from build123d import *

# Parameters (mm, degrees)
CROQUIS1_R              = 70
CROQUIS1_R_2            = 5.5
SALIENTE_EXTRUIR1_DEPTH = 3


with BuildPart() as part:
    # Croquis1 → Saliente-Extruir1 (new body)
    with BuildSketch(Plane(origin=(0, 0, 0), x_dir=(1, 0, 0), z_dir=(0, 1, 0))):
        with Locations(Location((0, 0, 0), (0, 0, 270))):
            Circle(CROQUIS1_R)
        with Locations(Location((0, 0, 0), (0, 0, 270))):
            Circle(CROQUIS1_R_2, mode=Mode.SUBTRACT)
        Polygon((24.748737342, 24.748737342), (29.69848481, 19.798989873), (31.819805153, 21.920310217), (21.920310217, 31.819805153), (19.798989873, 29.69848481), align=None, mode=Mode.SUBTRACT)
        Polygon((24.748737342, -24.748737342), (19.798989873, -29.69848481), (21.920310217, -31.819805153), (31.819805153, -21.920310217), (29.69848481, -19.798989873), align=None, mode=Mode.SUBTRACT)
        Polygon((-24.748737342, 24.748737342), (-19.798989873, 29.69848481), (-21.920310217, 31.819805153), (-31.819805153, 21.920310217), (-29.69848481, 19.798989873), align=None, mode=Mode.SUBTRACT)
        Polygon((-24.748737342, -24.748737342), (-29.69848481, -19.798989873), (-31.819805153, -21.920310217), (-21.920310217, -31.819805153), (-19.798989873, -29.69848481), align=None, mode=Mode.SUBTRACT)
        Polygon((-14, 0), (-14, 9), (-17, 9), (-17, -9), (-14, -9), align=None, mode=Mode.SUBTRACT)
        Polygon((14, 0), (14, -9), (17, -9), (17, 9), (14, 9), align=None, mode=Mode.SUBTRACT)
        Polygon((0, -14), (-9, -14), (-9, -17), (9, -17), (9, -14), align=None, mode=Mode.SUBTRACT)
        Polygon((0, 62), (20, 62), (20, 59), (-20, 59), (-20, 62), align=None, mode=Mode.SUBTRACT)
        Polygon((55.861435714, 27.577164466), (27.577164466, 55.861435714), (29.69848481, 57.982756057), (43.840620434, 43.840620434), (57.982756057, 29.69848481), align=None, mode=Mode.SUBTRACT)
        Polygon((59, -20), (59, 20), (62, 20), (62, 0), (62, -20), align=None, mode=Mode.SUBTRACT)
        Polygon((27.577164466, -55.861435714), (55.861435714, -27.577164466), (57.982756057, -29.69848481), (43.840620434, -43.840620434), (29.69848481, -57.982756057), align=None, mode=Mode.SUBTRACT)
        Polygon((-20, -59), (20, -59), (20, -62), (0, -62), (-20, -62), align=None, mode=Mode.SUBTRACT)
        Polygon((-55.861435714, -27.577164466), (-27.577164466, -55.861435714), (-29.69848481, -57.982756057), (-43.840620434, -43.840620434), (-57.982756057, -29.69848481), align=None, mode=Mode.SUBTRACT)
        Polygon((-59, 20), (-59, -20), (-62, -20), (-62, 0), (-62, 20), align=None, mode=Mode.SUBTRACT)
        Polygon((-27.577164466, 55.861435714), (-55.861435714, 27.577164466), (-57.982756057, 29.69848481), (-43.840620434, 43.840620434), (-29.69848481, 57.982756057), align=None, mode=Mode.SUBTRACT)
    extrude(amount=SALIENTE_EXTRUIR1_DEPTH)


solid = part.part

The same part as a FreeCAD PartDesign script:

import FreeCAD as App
import Part
import Sketcher

V = App.Vector

doc = App.newDocument("Part")
params = doc.addObject("Spreadsheet::Sheet", "Params")
for row, (alias, value) in enumerate([
    ("sketch1_diameter", "140 mm"),
    ("sketch1_diameter2", "11 mm"),
    ("sketch1_width", "3 mm"),
    ("sketch1_width2", "40 mm"),
    ("sketch1_width3", "18 mm"),
    ("pad1_length", "3 mm"),
], start=1):
    params.set(f"A{row}", alias)
    params.set(f"B{row}", "=" + value)
    params.setAlias(f"B{row}", alias)

body = doc.addObject("PartDesign::Body", "Body")

# Sketch on XZ plane
sketch1 = body.newObject("Sketcher::SketchObject", "Sketch")
sketch1.AttachmentSupport = (doc.getObject("XZ_Plane"), [""])
sketch1.MapMode = "FlatFace"
sketch1.addGeometry(Part.Circle(V(0, 0, 0), V(0, 0, 1), 70), False)
sketch1.addGeometry(Part.LineSegment(V(-29.7, -58, 0), V(-27.6, -55.9, 0)), False)
sketch1.addGeometry(Part.LineSegment(V(-27.6, -55.9, 0), V(-55.9, -27.6, 0)), False)
sketch1.addGeometry(Part.LineSegment(V(-55.9, -27.6, 0), V(-58, -29.7, 0)), False)
sketch1.addGeometry(Part.LineSegment(V(-58, -29.7, 0), V(-43.8, -43.8, 0)), False)
sketch1.addGeometry(Part.LineSegment(V(-43.8, -43.8, 0), V(-29.7, -58, 0)), False)
sketch1.addGeometry(Part.LineSegment(V(-19.8, -29.7, 0), V(-24.7, -24.7, 0)), False)
sketch1.addGeometry(Part.LineSegment(V(-24.7, -24.7, 0), V(-29.7, -19.8, 0)), False)
sketch1.addGeometry(Part.LineSegment(V(-29.7, -19.8, 0), V(-31.8, -21.9, 0)), False)
sketch1.addGeometry(Part.LineSegment(V(-31.8, -21.9, 0), V(-21.9, -31.8, 0)), False)
sketch1.addGeometry(Part.LineSegment(V(-21.9, -31.8, 0), V(-19.8, -29.7, 0)), False)
sketch1.addGeometry(Part.LineSegment(V(-62, -20, 0), V(-59, -20, 0)), False)
sketch1.addGeometry(Part.LineSegment(V(-59, -20, 0), V(-59, 20, 0)), False)
sketch1.addGeometry(Part.LineSegment(V(-59, 20, 0), V(-62, 20, 0)), False)
sketch1.addGeometry(Part.LineSegment(V(-62, 20, 0), V(-62, -20, 0)), False)
sketch1.addGeometry(Part.LineSegment(V(-58, 29.7, 0), V(-55.9, 27.6, 0)), False)
sketch1.addGeometry(Part.LineSegment(V(-55.9, 27.6, 0), V(-27.6, 55.9, 0)), False)
sketch1.addGeometry(Part.LineSegment(V(-27.6, 55.9, 0), V(-29.7, 58, 0)), False)
sketch1.addGeometry(Part.LineSegment(V(-29.7, 58, 0), V(-43.8, 43.8, 0)), False)
sketch1.addGeometry(Part.LineSegment(V(-43.8, 43.8, 0), V(-58, 29.7, 0)), False)
sketch1.addGeometry(Part.LineSegment(V(-29.7, 19.8, 0), V(-24.7, 24.7, 0)), False)
sketch1.addGeometry(Part.LineSegment(V(-24.7, 24.7, 0), V(-19.8, 29.7, 0)), False)
sketch1.addGeometry(Part.LineSegment(V(-19.8, 29.7, 0), V(-21.9, 31.8, 0)), False)
sketch1.addGeometry(Part.LineSegment(V(-21.9, 31.8, 0), V(-31.8, 21.9, 0)), False)
sketch1.addGeometry(Part.LineSegment(V(-31.8, 21.9, 0), V(-29.7, 19.8, 0)), False)
sketch1.addGeometry(Part.LineSegment(V(-14, -9, 0), V(-14, 9, 0)), False)
sketch1.addGeometry(Part.LineSegment(V(-14, 9, 0), V(-17, 9, 0)), False)
sketch1.addGeometry(Part.LineSegment(V(-17, 9, 0), V(-17, -9, 0)), False)
sketch1.addGeometry(Part.LineSegment(V(-17, -9, 0), V(-14, -9, 0)), False)
sketch1.addGeometry(Part.LineSegment(V(-20, -62, 0), V(20, -62, 0)), False)
sketch1.addGeometry(Part.LineSegment(V(20, -62, 0), V(20, -59, 0)), False)
sketch1.addGeometry(Part.LineSegment(V(20, -59, 0), V(-20, -59, 0)), False)
sketch1.addGeometry(Part.LineSegment(V(-20, -59, 0), V(-20, -62, 0)), False)
sketch1.addGeometry(Part.LineSegment(V(29.7, -19.8, 0), V(24.7, -24.7, 0)), False)
sketch1.addGeometry(Part.LineSegment(V(24.7, -24.7, 0), V(19.8, -29.7, 0)), False)
sketch1.addGeometry(Part.LineSegment(V(19.8, -29.7, 0), V(21.9, -31.8, 0)), False)
sketch1.addGeometry(Part.LineSegment(V(21.9, -31.8, 0), V(31.8, -21.9, 0)), False)
sketch1.addGeometry(Part.LineSegment(V(31.8, -21.9, 0), V(29.7, -19.8, 0)), False)
sketch1.addGeometry(Part.LineSegment(V(58, -29.7, 0), V(55.9, -27.6, 0)), False)
sketch1.addGeometry(Part.LineSegment(V(55.9, -27.6, 0), V(27.6, -55.9, 0)), False)
sketch1.addGeometry(Part.LineSegment(V(27.6, -55.9, 0), V(29.7, -58, 0)), False)
sketch1.addGeometry(Part.LineSegment(V(29.7, -58, 0), V(43.8, -43.8, 0)), False)
sketch1.addGeometry(Part.LineSegment(V(43.8, -43.8, 0), V(58, -29.7, 0)), False)
sketch1.addGeometry(Part.Circle(V(0, 0, 0), V(0, 0, 1), 5.5), False)
sketch1.addGeometry(Part.LineSegment(V(-9, 14, 0), V(9, 14, 0)), False)
sketch1.addGeometry(Part.LineSegment(V(9, 14, 0), V(9, 17, 0)), False)
sketch1.addGeometry(Part.LineSegment(V(9, 17, 0), V(-9, 17, 0)), False)
sketch1.addGeometry(Part.LineSegment(V(-9, 17, 0), V(-9, 14, 0)), False)
sketch1.addGeometry(Part.LineSegment(V(14, 9, 0), V(14, -9, 0)), False)
sketch1.addGeometry(Part.LineSegment(V(14, -9, 0), V(17, -9, 0)), False)
sketch1.addGeometry(Part.LineSegment(V(17, -9, 0), V(17, 9, 0)), False)
sketch1.addGeometry(Part.LineSegment(V(17, 9, 0), V(14, 9, 0)), False)
sketch1.addGeometry(Part.LineSegment(V(19.8, 29.7, 0), V(24.7, 24.7, 0)), False)
sketch1.addGeometry(Part.LineSegment(V(24.7, 24.7, 0), V(29.7, 19.8, 0)), False)
sketch1.addGeometry(Part.LineSegment(V(29.7, 19.8, 0), V(31.8, 21.9, 0)), False)
sketch1.addGeometry(Part.LineSegment(V(31.8, 21.9, 0), V(21.9, 31.8, 0)), False)
sketch1.addGeometry(Part.LineSegment(V(21.9, 31.8, 0), V(19.8, 29.7, 0)), False)
sketch1.addGeometry(Part.LineSegment(V(-20, 62, 0), V(-20, 59, 0)), False)
sketch1.addGeometry(Part.LineSegment(V(-20, 59, 0), V(20, 59, 0)), False)
sketch1.addGeometry(Part.LineSegment(V(20, 59, 0), V(20, 62, 0)), False)
sketch1.addGeometry(Part.LineSegment(V(20, 62, 0), V(-20, 62, 0)), False)
sketch1.addGeometry(Part.LineSegment(V(62, 20, 0), V(59, 20, 0)), False)
sketch1.addGeometry(Part.LineSegment(V(59, 20, 0), V(59, -20, 0)), False)
sketch1.addGeometry(Part.LineSegment(V(59, -20, 0), V(62, -20, 0)), False)
sketch1.addGeometry(Part.LineSegment(V(62, -20, 0), V(62, 20, 0)), False)
sketch1.addGeometry(Part.LineSegment(V(29.7, 58, 0), V(27.6, 55.9, 0)), False)
sketch1.addGeometry(Part.LineSegment(V(27.6, 55.9, 0), V(55.9, 27.6, 0)), False)
sketch1.addGeometry(Part.LineSegment(V(55.9, 27.6, 0), V(58, 29.7, 0)), False)
sketch1.addGeometry(Part.LineSegment(V(58, 29.7, 0), V(43.8, 43.8, 0)), False)
sketch1.addGeometry(Part.LineSegment(V(43.8, 43.8, 0), V(29.7, 58, 0)), False)
sketch1.addConstraint(Sketcher.Constraint("Coincident", 1, 2, 2, 1))
sketch1.addConstraint(Sketcher.Constraint("Coincident", 2, 2, 3, 1))
sketch1.addConstraint(Sketcher.Constraint("Coincident", 3, 2, 4, 1))
sketch1.addConstraint(Sketcher.Constraint("Coincident", 4, 2, 5, 1))
sketch1.addConstraint(Sketcher.Constraint("Coincident", 5, 2, 1, 1))
sketch1.addConstraint(Sketcher.Constraint("Coincident", 6, 2, 7, 1))
sketch1.addConstraint(Sketcher.Constraint("Coincident", 7, 2, 8, 1))
sketch1.addConstraint(Sketcher.Constraint("Coincident", 8, 2, 9, 1))
sketch1.addConstraint(Sketcher.Constraint("Coincident", 9, 2, 10, 1))
sketch1.addConstraint(Sketcher.Constraint("Coincident", 10, 2, 6, 1))
sketch1.addConstraint(Sketcher.Constraint("Coincident", 11, 2, 12, 1))
sketch1.addConstraint(Sketcher.Constraint("Coincident", 12, 2, 13, 1))
sketch1.addConstraint(Sketcher.Constraint("Coincident", 13, 2, 14, 1))
sketch1.addConstraint(Sketcher.Constraint("Coincident", 14, 2, 11, 1))
sketch1.addConstraint(Sketcher.Constraint("Coincident", 15, 2, 16, 1))
sketch1.addConstraint(Sketcher.Constraint("Coincident", 16, 2, 17, 1))
sketch1.addConstraint(Sketcher.Constraint("Coincident", 17, 2, 18, 1))
sketch1.addConstraint(Sketcher.Constraint("Coincident", 18, 2, 19, 1))
sketch1.addConstraint(Sketcher.Constraint("Coincident", 19, 2, 15, 1))
sketch1.addConstraint(Sketcher.Constraint("Coincident", 20, 2, 21, 1))
sketch1.addConstraint(Sketcher.Constraint("Coincident", 21, 2, 22, 1))
sketch1.addConstraint(Sketcher.Constraint("Coincident", 22, 2, 23, 1))
sketch1.addConstraint(Sketcher.Constraint("Coincident", 23, 2, 24, 1))
sketch1.addConstraint(Sketcher.Constraint("Coincident", 24, 2, 20, 1))
sketch1.addConstraint(Sketcher.Constraint("Coincident", 25, 2, 26, 1))
sketch1.addConstraint(Sketcher.Constraint("Coincident", 26, 2, 27, 1))
sketch1.addConstraint(Sketcher.Constraint("Coincident", 27, 2, 28, 1))
sketch1.addConstraint(Sketcher.Constraint("Coincident", 28, 2, 25, 1))
sketch1.addConstraint(Sketcher.Constraint("Coincident", 29, 2, 30, 1))
sketch1.addConstraint(Sketcher.Constraint("Coincident", 30, 2, 31, 1))
sketch1.addConstraint(Sketcher.Constraint("Coincident", 31, 2, 32, 1))
sketch1.addConstraint(Sketcher.Constraint("Coincident", 32, 2, 29, 1))
sketch1.addConstraint(Sketcher.Constraint("Coincident", 33, 2, 34, 1))
sketch1.addConstraint(Sketcher.Constraint("Coincident", 34, 2, 35, 1))
sketch1.addConstraint(Sketcher.Constraint("Coincident", 35, 2, 36, 1))
sketch1.addConstraint(Sketcher.Constraint("Coincident", 36, 2, 37, 1))
sketch1.addConstraint(Sketcher.Constraint("Coincident", 37, 2, 33, 1))
sketch1.addConstraint(Sketcher.Constraint("Coincident", 38, 2, 39, 1))
sketch1.addConstraint(Sketcher.Constraint("Coincident", 39, 2, 40, 1))
sketch1.addConstraint(Sketcher.Constraint("Coincident", 40, 2, 41, 1))
sketch1.addConstraint(Sketcher.Constraint("Coincident", 41, 2, 42, 1))
sketch1.addConstraint(Sketcher.Constraint("Coincident", 42, 2, 38, 1))
sketch1.addConstraint(Sketcher.Constraint("Coincident", 44, 2, 45, 1))
sketch1.addConstraint(Sketcher.Constraint("Coincident", 45, 2, 46, 1))
sketch1.addConstraint(Sketcher.Constraint("Coincident", 46, 2, 47, 1))
sketch1.addConstraint(Sketcher.Constraint("Coincident", 47, 2, 44, 1))
sketch1.addConstraint(Sketcher.Constraint("Coincident", 48, 2, 49, 1))
sketch1.addConstraint(Sketcher.Constraint("Coincident", 49, 2, 50, 1))
sketch1.addConstraint(Sketcher.Constraint("Coincident", 50, 2, 51, 1))
sketch1.addConstraint(Sketcher.Constraint("Coincident", 51, 2, 48, 1))
sketch1.addConstraint(Sketcher.Constraint("Coincident", 52, 2, 53, 1))
sketch1.addConstraint(Sketcher.Constraint("Coincident", 53, 2, 54, 1))
sketch1.addConstraint(Sketcher.Constraint("Coincident", 54, 2, 55, 1))
sketch1.addConstraint(Sketcher.Constraint("Coincident", 55, 2, 56, 1))
sketch1.addConstraint(Sketcher.Constraint("Coincident", 56, 2, 52, 1))
sketch1.addConstraint(Sketcher.Constraint("Coincident", 57, 2, 58, 1))
sketch1.addConstraint(Sketcher.Constraint("Coincident", 58, 2, 59, 1))
sketch1.addConstraint(Sketcher.Constraint("Coincident", 59, 2, 60, 1))
sketch1.addConstraint(Sketcher.Constraint("Coincident", 60, 2, 57, 1))
sketch1.addConstraint(Sketcher.Constraint("Coincident", 61, 2, 62, 1))
sketch1.addConstraint(Sketcher.Constraint("Coincident", 62, 2, 63, 1))
sketch1.addConstraint(Sketcher.Constraint("Coincident", 63, 2, 64, 1))
sketch1.addConstraint(Sketcher.Constraint("Coincident", 64, 2, 61, 1))
sketch1.addConstraint(Sketcher.Constraint("Coincident", 65, 2, 66, 1))
sketch1.addConstraint(Sketcher.Constraint("Coincident", 66, 2, 67, 1))
sketch1.addConstraint(Sketcher.Constraint("Coincident", 67, 2, 68, 1))
sketch1.addConstraint(Sketcher.Constraint("Coincident", 68, 2, 69, 1))
sketch1.addConstraint(Sketcher.Constraint("Coincident", 69, 2, 65, 1))
sketch1.addConstraint(Sketcher.Constraint("Horizontal", 11))
sketch1.addConstraint(Sketcher.Constraint("Vertical", 12))
sketch1.addConstraint(Sketcher.Constraint("Horizontal", 13))
sketch1.addConstraint(Sketcher.Constraint("Vertical", 14))
sketch1.addConstraint(Sketcher.Constraint("Vertical", 25))
sketch1.addConstraint(Sketcher.Constraint("Horizontal", 26))
sketch1.addConstraint(Sketcher.Constraint("Vertical", 27))
sketch1.addConstraint(Sketcher.Constraint("Horizontal", 28))
sketch1.addConstraint(Sketcher.Constraint("Horizontal", 29))
sketch1.addConstraint(Sketcher.Constraint("Vertical", 30))
sketch1.addConstraint(Sketcher.Constraint("Horizontal", 31))
sketch1.addConstraint(Sketcher.Constraint("Vertical", 32))
sketch1.addConstraint(Sketcher.Constraint("Horizontal", 44))
sketch1.addConstraint(Sketcher.Constraint("Vertical", 45))
sketch1.addConstraint(Sketcher.Constraint("Horizontal", 46))
sketch1.addConstraint(Sketcher.Constraint("Vertical", 47))
sketch1.addConstraint(Sketcher.Constraint("Vertical", 48))
sketch1.addConstraint(Sketcher.Constraint("Horizontal", 49))
sketch1.addConstraint(Sketcher.Constraint("Vertical", 50))
sketch1.addConstraint(Sketcher.Constraint("Horizontal", 51))
sketch1.addConstraint(Sketcher.Constraint("Vertical", 57))
sketch1.addConstraint(Sketcher.Constraint("Horizontal", 58))
sketch1.addConstraint(Sketcher.Constraint("Vertical", 59))
sketch1.addConstraint(Sketcher.Constraint("Horizontal", 60))
sketch1.addConstraint(Sketcher.Constraint("Horizontal", 61))
sketch1.addConstraint(Sketcher.Constraint("Vertical", 62))
sketch1.addConstraint(Sketcher.Constraint("Horizontal", 63))
sketch1.addConstraint(Sketcher.Constraint("Vertical", 64))
sketch1.addConstraint(Sketcher.Constraint("Coincident", 0, 3, -1, 1))
sketch1.addConstraint(Sketcher.Constraint("Coincident", 43, 3, -1, 1))
sketch1.addConstraint(Sketcher.Constraint("Symmetric", 20, 2, 33, 2, -1, 1))
sketch1.addConstraint(Sketcher.Constraint("Symmetric", 21, 2, 34, 2, -1, 1))
sketch1.addConstraint(Sketcher.Constraint("Symmetric", 22, 2, 35, 2, -1, 1))
sketch1.addConstraint(Sketcher.Constraint("Symmetric", 23, 2, 36, 2, -1, 1))
sketch1.addConstraint(Sketcher.Constraint("Symmetric", 24, 2, 37, 2, -1, 1))
sketch1.addConstraint(Sketcher.Constraint("Symmetric", 15, 2, 38, 2, -1, 1))
sketch1.addConstraint(Sketcher.Constraint("Symmetric", 16, 2, 39, 2, -1, 1))
sketch1.addConstraint(Sketcher.Constraint("Symmetric", 17, 2, 40, 2, -1, 1))
sketch1.addConstraint(Sketcher.Constraint("Symmetric", 18, 2, 41, 2, -1, 1))
sketch1.addConstraint(Sketcher.Constraint("Symmetric", 19, 2, 42, 2, -1, 1))
sketch1.addConstraint(Sketcher.Constraint("Symmetric", 25, 2, 48, 2, -1, 1))
sketch1.addConstraint(Sketcher.Constraint("Symmetric", 27, 2, 50, 2, -1, 1))
sketch1.addConstraint(Sketcher.Constraint("Symmetric", 6, 2, 52, 2, -1, 1))
sketch1.addConstraint(Sketcher.Constraint("Symmetric", 7, 2, 53, 2, -1, 1))
sketch1.addConstraint(Sketcher.Constraint("Symmetric", 8, 2, 54, 2, -1, 1))
sketch1.addConstraint(Sketcher.Constraint("Symmetric", 9, 2, 55, 2, -1, 1))
sketch1.addConstraint(Sketcher.Constraint("Symmetric", 10, 2, 56, 2, -1, 1))
sketch1.addConstraint(Sketcher.Constraint("Symmetric", 30, 2, 57, 2, -1, 1))
sketch1.addConstraint(Sketcher.Constraint("Symmetric", 32, 2, 59, 2, -1, 1))
sketch1.addConstraint(Sketcher.Constraint("Symmetric", 11, 2, 61, 2, -1, 1))
sketch1.addConstraint(Sketcher.Constraint("Symmetric", 13, 2, 63, 2, -1, 1))
sketch1.addConstraint(Sketcher.Constraint("Symmetric", 1, 2, 65, 2, -1, 1))
sketch1.addConstraint(Sketcher.Constraint("Symmetric", 2, 2, 66, 2, -1, 1))
sketch1.addConstraint(Sketcher.Constraint("Symmetric", 3, 2, 67, 2, -1, 1))
sketch1.addConstraint(Sketcher.Constraint("Symmetric", 4, 2, 68, 2, -1, 1))
sketch1.addConstraint(Sketcher.Constraint("Symmetric", 5, 2, 69, 2, -1, 1))
sketch1.addConstraint(Sketcher.Constraint("Symmetric", 6, 2, 33, 2, -2))
sketch1.addConstraint(Sketcher.Constraint("Symmetric", 10, 2, 34, 2, -2))
sketch1.addConstraint(Sketcher.Constraint("Symmetric", 9, 2, 35, 2, -2))
sketch1.addConstraint(Sketcher.Constraint("Symmetric", 8, 2, 36, 2, -2))
sketch1.addConstraint(Sketcher.Constraint("Symmetric", 7, 2, 37, 2, -2))
sketch1.addConstraint(Sketcher.Constraint("Symmetric", 2, 2, 38, 2, -2))
sketch1.addConstraint(Sketcher.Constraint("Symmetric", 1, 2, 39, 2, -2))
sketch1.addConstraint(Sketcher.Constraint("Symmetric", 5, 2, 40, 2, -2))
sketch1.addConstraint(Sketcher.Constraint("Symmetric", 4, 2, 41, 2, -2))
sketch1.addConstraint(Sketcher.Constraint("Symmetric", 3, 2, 42, 2, -2))
sketch1.addConstraint(Sketcher.Constraint("Perpendicular", 1, 2))
sketch1.addConstraint(Sketcher.Constraint("Perpendicular", 2, 3))
sketch1.addConstraint(Sketcher.Constraint("Perpendicular", 3, 4))
sketch1.addConstraint(Sketcher.Constraint("Parallel", 4, 5))
sketch1.addConstraint(Sketcher.Constraint("Parallel", 5, 6))
sketch1.addConstraint(Sketcher.Constraint("Parallel", 6, 7))
sketch1.addConstraint(Sketcher.Constraint("Perpendicular", 7, 8))
sketch1.addConstraint(Sketcher.Constraint("Perpendicular", 8, 9))
sketch1.addConstraint(Sketcher.Constraint("Perpendicular", 9, 10))
sketch1.addConstraint(Sketcher.Constraint("Perpendicular", 10, 15))
sketch1.addConstraint(Sketcher.Constraint("Horizontal", 3, 2, 10, 2))
sketch1.addConstraint(Sketcher.Constraint("Horizontal", 28, 2, 48, 2))
sketch1.addConstraint(Sketcher.Constraint("Horizontal", 13, 2, 61, 2))
sketch1.addConstraint(Sketcher.Constraint("Vertical", 5, 2, 7, 2))
sketch1.addConstraint(Sketcher.Constraint("Vertical", 32, 2, 57, 2))
sketch1.addConstraint(Sketcher.Constraint("Equal", 13, 26))
sketch1.addConstraint(Sketcher.Constraint("Equal", 60, 12))
sketch1.addConstraint(Sketcher.Constraint("Equal", 46, 25))
sketch1.addConstraint(Sketcher.Constraint("Equal", 63, 30))
sketch1.addConstraint(Sketcher.Constraint("Equal", 32, 45))
sketch1.addConstraint(Sketcher.Constraint("Equal", 4, 5))
sketch1.addConstraint(Sketcher.Constraint("Equal", 6, 7))
sketch1.addConstraint(Sketcher.Constraint("Equal", 3, 8))
sketch1.addConstraint(Sketcher.Constraint("Diameter", 0, 140.0))
sketch1.addConstraint(Sketcher.Constraint("Diameter", 43, 11.0))
sketch1.addConstraint(Sketcher.Constraint("DistanceX", 11, 1, 11, 2, 3.0))
sketch1.addConstraint(Sketcher.Constraint("DistanceX", 29, 1, 29, 2, 40.0))
sketch1.addConstraint(Sketcher.Constraint("DistanceX", 44, 1, 44, 2, 18.0))
sketch1.addConstraint(Sketcher.Constraint("Distance", 1, 3.0))
sketch1.addConstraint(Sketcher.Constraint("Distance", 2, 40.0))
sketch1.addConstraint(Sketcher.Constraint("Distance", 6, 7.0))
sketch1.addConstraint(Sketcher.Constraint("DistanceX", 11, 2, -1, 1, 59.0))
sketch1.addConstraint(Sketcher.Constraint("DistanceX", 25, 2, -1, 1, 14.0))
sketch1.addConstraint(Sketcher.Constraint("DistanceY", 29, 2, -1, 1, 62.0))
sketch1.addConstraint(Sketcher.Constraint("DistanceX", -1, 1, 44, 2, 9.0))
sketch1.addConstraint(Sketcher.Constraint("DistanceY", -1, 1, 44, 2, 14.0))
sketch1.addConstraint(Sketcher.Constraint("DistanceX", 4, 2, -1, 1, 43.84062))
sketch1.addConstraint(Sketcher.Constraint("DistanceY", 4, 2, -1, 1, 43.84062))
sketch1.setExpression("Constraints[157]", "Params.sketch1_diameter")
sketch1.setExpression("Constraints[158]", "Params.sketch1_diameter2")
sketch1.setExpression("Constraints[159]", "Params.sketch1_width")
sketch1.setExpression("Constraints[160]", "Params.sketch1_width2")
sketch1.setExpression("Constraints[161]", "Params.sketch1_width3")
pad1 = body.newObject("PartDesign::Pad", "Pad")
pad1.Profile = sketch1
pad1.setExpression("Length", "Params.pad1_length")
pad1.Reversed = True

doc.recompute()
